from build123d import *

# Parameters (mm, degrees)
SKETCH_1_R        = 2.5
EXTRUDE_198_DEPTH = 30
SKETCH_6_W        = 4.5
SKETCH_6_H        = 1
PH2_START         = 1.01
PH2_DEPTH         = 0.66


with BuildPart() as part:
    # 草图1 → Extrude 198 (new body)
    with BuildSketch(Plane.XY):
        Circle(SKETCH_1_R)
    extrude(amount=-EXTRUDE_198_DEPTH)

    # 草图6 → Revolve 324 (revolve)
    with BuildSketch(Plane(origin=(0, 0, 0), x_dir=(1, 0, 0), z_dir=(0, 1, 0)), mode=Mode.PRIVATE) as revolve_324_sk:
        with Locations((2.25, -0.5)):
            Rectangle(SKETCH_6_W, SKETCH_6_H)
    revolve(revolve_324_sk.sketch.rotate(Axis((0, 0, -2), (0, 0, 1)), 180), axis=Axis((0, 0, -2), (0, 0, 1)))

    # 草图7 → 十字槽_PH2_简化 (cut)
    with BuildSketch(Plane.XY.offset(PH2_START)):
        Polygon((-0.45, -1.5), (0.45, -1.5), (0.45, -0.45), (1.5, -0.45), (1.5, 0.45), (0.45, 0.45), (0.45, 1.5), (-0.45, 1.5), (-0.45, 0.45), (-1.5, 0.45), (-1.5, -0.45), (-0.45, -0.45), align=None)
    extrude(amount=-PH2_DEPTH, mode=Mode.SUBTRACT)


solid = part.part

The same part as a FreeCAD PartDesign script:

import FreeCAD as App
import Part
import Sketcher

V = App.Vector
Q = App.Units.Quantity


def add_polygon(sketch, points):
    """Adds a closed chain of lines whose ends are joined by coincident constraints."""
    first, n = sketch.GeometryCount, len(points)
    for a, b in zip(points, points[1:] + points[:1]):
        sketch.addGeometry(Part.LineSegment(App.Vector(*a, 0), App.Vector(*b, 0)), False)
    for i in range(n):
        sketch.addConstraint(Sketcher.Constraint("Coincident", first + i, 2, first + (i + 1) % n, 1))

doc = App.newDocument("Part")
params = doc.addObject("Spreadsheet::Sheet", "Params")
for row, (alias, value) in enumerate([
    ("sketch1_diameter", "5 mm"),
    ("pad1_length", "30 mm"),
    ("sketch2_height", "1 mm"),
    ("sketch2_width", "4.5 mm"),
    ("revolution_angle", "360 deg"),
    ("sketch3_width", "0.9 mm"),
    ("pocket1_length", "0.66 mm"),
], start=1):
    params.set(f"A{row}", alias)
    params.set(f"B{row}", "=" + value)
    params.setAlias(f"B{row}", alias)

body = doc.addObject("PartDesign::Body", "Body")

sketch1 = doc.addObject("Sketcher::SketchObject", "Sketch")
body.addObject(sketch1)
sketch1.AttachmentSupport = (doc.XY_Plane, [""])
sketch1.MapMode = "FlatFace"
sketch1.addGeometry(Part.Circle(V(0, 0, 0), V(0, 0, 1), 2.5), False)
sketch1.addConstraint([
    Sketcher.Constraint("Coincident", 0, 3, -1, 1),
    Sketcher.Constraint("Diameter", 0, Q("5 mm")),
])
sketch1.setExpression("Constraints[1]", "Params.sketch1_diameter")
pad1 = doc.addObject("PartDesign::Pad", "Pad")
body.addObject(pad1)
pad1.Profile = sketch1
pad1.setExpression("Length", "Params.pad1_length")
pad1.Reversed = True

sketch2 = doc.addObject("Sketcher::SketchObject", "Sketch001")
body.addObject(sketch2)
sketch2.AttachmentSupport = (doc.XZ_Plane, [""])
sketch2.MapMode = "FlatFace"
add_polygon(sketch2, [(0, 0), (0, 1), (4.5, 1), (4.5, 0)])
sketch2.addConstraint([
    Sketcher.Constraint("Vertical", 0),
    Sketcher.Constraint("Horizontal", 1),
    Sketcher.Constraint("Vertical", 2),
    Sketcher.Constraint("Horizontal", 3),
    Sketcher.Constraint("Coincident", 3, 2, -1, 1),
    Sketcher.Constraint("DistanceY", 0, 1, 0, 2, Q("1 mm")),
    Sketcher.Constraint("DistanceX", 1, 1, 1, 2, Q("4.5 mm")),
])
sketch2.setExpression("Constraints[9]", "Params.sketch2_height")
sketch2.setExpression("Constraints[10]", "Params.sketch2_width")
revolution = doc.addObject("PartDesign::Revolution", "Revolution")
body.addObject(revolution)
revolution.Profile = sketch2
revolution.ReferenceAxis = (sketch2, ["V_Axis"])
revolution.setExpression("Angle", "Params.revolution_angle")

sketch3 = doc.addObject("Sketcher::SketchObject", "Sketch002")
body.addObject(sketch3)
sketch3.AttachmentSupport = (doc.XY_Plane, [""])
sketch3.MapMode = "FlatFace"
sketch3.AttachmentOffset = App.Placement(V(0, 0, 1.01), App.Rotation())
add_polygon(sketch3, [(-0.5, -1.5), (0.5, -1.5), (0.5, -0.5), (1.5, -0.5), (1.5, 0.5), (0.5, 0.5), (0.5, 1.5), (-0.5, 1.5), (-0.5, 0.5), (-1.5, 0.5), (-1.5, -0.5), (-0.5, -0.5)])
sketch3.addConstraint([
    Sketcher.Constraint("Horizontal", 0),
    Sketcher.Constraint("Vertical", 1),
    Sketcher.Constraint("Horizontal", 2),
    Sketcher.Constraint("Vertical", 3),
    Sketcher.Constraint("Horizontal", 4),
    Sketcher.Constraint("Vertical", 5),
    Sketcher.Constraint("Horizontal", 6),
    Sketcher.Constraint("Vertical", 7),
    Sketcher.Constraint("Horizontal", 8),
    Sketcher.Constraint("Vertical", 9),
    Sketcher.Constraint("Horizontal", 10),
    Sketcher.Constraint("Vertical", 11),
    Sketcher.Constraint("Symmetric", 0, 2, 6, 2, -1, 1),
    Sketcher.Constraint("Symmetric", 2, 2, 8, 2, -1, 1),
    Sketcher.Constraint("Symmetric", 4, 2, 10, 2, -1, 1),
    Sketcher.Constraint("Symmetric", 4, 2, 7, 2, -2),
    Sketcher.Constraint("Equal", 10, 1),
    Sketcher.Constraint("Equal", 6, 3),
    Sketcher.Constraint("DistanceX", 0, 1, 0, 2, Q("0.9 mm")),
    Sketcher.Constraint("DistanceY", 0, 2, 5, 2, Q("3 mm")),
])
sketch3.setExpression("Constraints[30]", "Params.sketch3_width")
pocket1 = doc.addObject("PartDesign::Pocket", "Pocket")
body.addObject(pocket1)
pocket1.Profile = sketch3
pocket1.setExpression("Length", "Params.pocket1_length")

doc.recompute()
